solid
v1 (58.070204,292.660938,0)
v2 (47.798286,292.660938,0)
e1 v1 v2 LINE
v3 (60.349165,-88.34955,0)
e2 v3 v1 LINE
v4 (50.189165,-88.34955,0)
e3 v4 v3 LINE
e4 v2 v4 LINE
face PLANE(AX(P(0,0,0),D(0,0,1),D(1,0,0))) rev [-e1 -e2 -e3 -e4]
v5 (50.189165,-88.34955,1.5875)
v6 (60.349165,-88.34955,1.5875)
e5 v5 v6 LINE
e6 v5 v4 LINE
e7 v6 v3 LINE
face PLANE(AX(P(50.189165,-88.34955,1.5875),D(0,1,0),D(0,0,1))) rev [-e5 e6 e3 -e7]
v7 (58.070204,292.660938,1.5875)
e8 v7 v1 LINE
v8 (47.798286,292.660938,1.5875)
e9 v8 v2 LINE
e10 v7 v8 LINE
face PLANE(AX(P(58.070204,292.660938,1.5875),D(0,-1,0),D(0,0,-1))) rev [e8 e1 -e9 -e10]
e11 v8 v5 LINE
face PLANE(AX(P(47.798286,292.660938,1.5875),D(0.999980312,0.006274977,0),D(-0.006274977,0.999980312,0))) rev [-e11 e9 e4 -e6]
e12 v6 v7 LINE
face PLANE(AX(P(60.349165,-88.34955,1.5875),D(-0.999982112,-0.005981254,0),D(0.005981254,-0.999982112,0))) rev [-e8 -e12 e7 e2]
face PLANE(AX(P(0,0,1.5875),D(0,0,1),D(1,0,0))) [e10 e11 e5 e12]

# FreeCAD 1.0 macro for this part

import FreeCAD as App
import Part
import Sketcher
from FreeCAD import Vector
Q = App.Units.Quantity


def add_polygon(sketch, points):
    """Adds a closed chain of lines whose ends are joined by coincident constraints."""
    first, n = sketch.GeometryCount, len(points)
    for a, b in zip(points, points[1:] + points[:1]):
        sketch.addGeometry(Part.LineSegment(App.Vector(*a, 0), App.Vector(*b, 0)), False)
    for i in range(n):
        sketch.addConstraint(Sketcher.Constraint("Coincident", first + i, 2, first + (i + 1) % n, 1))

doc = App.newDocument("Part")
params = doc.addObject("Spreadsheet::Sheet", "Params")
for row, (alias, value) in enumerate([
    ("sketch1_width", "0.4 in"),
    ("pad1_length", "0.0625 in"),
], start=1):
    params.set(f"A{row}", alias)
    params.set(f"B{row}", "=" + value)
    params.setAlias(f"B{row}", alias)

body = doc.addObject("PartDesign::Body", "Body")

# Sketch on XY plane
sketch1 = body.newObject("Sketcher::SketchObject", "Sketch")
sketch1.AttachmentSupport = (doc.getObject("XY_Plane"), [""])
sketch1.MapMode = "FlatFace"
add_polygon(sketch1, [(50, -88), (60, -88), (58, 293), (48, 293)])  # lines 0-3
sketch1.addConstraint([
    Sketcher.Constraint("Horizontal", 0),
    Sketcher.Constraint("Horizontal", 2),
    Sketcher.Constraint("DistanceX", 0, 1, 0, 2, Q("0.4 in")),
    Sketcher.Constraint("Distance", 3, Q("381.017989 mm")),
    Sketcher.Constraint("DistanceX", 2, 2, 2, 1, Q("10.271918 mm")),
    Sketcher.Constraint("DistanceY", 0, 2, -1, 1, Q("88.34955 mm")),
    Sketcher.Constraint("DistanceX", 1, 2, 0, 2, Q("2.278961 mm")),
    Sketcher.Constraint("DistanceX", -1, 1, 0, 2, Q("60.349165 mm")),
])
sketch1.setExpression("Constraints[6]", "Params.sketch1_width")
pad1 = body.newObject("PartDesign::Pad", "Pad")
pad1.Profile = sketch1
pad1.setExpression("Length", "Params.pad1_length")

doc.recompute()
